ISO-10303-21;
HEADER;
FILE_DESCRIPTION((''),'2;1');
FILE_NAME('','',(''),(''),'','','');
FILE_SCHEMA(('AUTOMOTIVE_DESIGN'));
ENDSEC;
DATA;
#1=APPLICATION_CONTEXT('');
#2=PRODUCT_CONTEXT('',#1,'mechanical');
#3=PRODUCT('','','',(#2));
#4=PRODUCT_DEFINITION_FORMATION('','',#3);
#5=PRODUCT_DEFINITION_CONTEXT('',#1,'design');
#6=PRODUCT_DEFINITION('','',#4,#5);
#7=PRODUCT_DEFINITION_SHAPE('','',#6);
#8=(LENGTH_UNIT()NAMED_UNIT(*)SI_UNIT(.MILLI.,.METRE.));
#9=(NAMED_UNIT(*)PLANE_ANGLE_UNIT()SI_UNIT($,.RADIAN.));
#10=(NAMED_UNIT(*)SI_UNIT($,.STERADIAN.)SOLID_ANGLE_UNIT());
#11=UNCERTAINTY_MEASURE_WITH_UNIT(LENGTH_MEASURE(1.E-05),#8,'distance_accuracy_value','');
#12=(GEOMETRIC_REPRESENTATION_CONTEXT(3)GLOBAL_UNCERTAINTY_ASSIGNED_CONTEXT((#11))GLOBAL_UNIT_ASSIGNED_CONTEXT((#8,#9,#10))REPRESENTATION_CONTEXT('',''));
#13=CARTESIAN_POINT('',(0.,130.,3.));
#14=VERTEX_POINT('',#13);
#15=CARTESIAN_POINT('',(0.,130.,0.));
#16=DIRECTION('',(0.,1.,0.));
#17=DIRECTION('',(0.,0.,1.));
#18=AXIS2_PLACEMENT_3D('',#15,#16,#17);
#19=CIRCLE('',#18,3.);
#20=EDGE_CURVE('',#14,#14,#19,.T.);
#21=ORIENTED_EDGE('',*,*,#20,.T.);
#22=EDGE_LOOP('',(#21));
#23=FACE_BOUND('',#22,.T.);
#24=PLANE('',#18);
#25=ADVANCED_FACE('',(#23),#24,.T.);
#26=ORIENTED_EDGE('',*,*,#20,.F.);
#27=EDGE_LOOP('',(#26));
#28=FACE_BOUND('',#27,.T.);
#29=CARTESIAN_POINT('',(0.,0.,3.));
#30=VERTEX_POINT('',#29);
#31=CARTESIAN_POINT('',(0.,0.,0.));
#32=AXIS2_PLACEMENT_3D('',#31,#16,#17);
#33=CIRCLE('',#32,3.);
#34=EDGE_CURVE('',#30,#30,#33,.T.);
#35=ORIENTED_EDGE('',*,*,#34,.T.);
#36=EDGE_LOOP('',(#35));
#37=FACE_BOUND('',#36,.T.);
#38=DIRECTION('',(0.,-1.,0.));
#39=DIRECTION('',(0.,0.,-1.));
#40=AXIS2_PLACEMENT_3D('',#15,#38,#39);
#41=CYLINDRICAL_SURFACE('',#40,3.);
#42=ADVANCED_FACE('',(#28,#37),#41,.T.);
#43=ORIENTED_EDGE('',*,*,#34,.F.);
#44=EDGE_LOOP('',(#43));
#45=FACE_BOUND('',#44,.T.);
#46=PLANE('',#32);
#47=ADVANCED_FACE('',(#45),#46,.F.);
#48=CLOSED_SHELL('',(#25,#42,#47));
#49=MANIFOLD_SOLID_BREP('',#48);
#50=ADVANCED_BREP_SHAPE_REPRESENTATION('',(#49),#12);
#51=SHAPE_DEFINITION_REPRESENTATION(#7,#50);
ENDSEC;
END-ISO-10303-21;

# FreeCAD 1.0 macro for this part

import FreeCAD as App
import Part
import Sketcher
from FreeCAD import Vector
Q = App.Units.Quantity

doc = App.newDocument("Part")
body = doc.addObject("PartDesign::Body", "Body")

# Sketch on XZ plane
sketch1 = doc.addObject("Sketcher::SketchObject", "Sketch")
body.addObject(sketch1)
sketch1.AttachmentSupport = (doc.XZ_Plane, [""])
sketch1.MapMode = "FlatFace"
sketch1.addGeometry(Part.Circle(Vector(0, 0, 0), Vector(0, 0, 1), 3), False)
sketch1.addConstraint([
    Sketcher.Constraint("Coincident", 0, 3, -1, 1),
    Sketcher.Constraint("Diameter", 0, Q("6 mm")),
])
pad1 = doc.addObject("PartDesign::Pad", "Pad")
body.addObject(pad1)
pad1.Profile = sketch1
pad1.Length = 130
pad1.Reversed = True

doc.recompute()
